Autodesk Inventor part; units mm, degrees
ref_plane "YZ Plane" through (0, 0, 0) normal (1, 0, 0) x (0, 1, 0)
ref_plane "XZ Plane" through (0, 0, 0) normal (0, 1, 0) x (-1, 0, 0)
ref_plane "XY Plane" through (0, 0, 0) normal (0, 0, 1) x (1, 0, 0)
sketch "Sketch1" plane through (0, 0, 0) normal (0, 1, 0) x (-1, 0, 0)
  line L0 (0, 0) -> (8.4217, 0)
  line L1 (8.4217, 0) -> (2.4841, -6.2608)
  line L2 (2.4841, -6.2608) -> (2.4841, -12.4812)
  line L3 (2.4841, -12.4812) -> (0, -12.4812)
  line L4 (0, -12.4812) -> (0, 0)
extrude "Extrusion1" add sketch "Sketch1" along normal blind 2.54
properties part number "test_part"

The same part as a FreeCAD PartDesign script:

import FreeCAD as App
import Part
import Sketcher
Q = App.Units.Quantity

doc = App.newDocument("Part")
body = doc.addObject("PartDesign::Body", "Body")

sketch1 = body.newObject("Sketcher::SketchObject", "Sketch")
sketch1.AttachmentSupport = (doc.getObject("XZ_Plane"), [""])
sketch1.MapMode = "FlatFace"
sketch1.addGeometry(Part.LineSegment(App.Vector(-8.4, 0, 0), App.Vector(0, 0, 0)), False)
sketch1.addGeometry(Part.LineSegment(App.Vector(0, 0, 0), App.Vector(0, -12.5, 0)), False)
sketch1.addGeometry(Part.LineSegment(App.Vector(0, -12.5, 0), App.Vector(-2.5, -12.5, 0)), False)
sketch1.addGeometry(Part.LineSegment(App.Vector(-2.5, -12.5, 0), App.Vector(-2.5, -6.3, 0)), False)
sketch1.addGeometry(Part.LineSegment(App.Vector(-2.5, -6.3, 0), App.Vector(-8.4, 0, 0)), False)
sketch1.addConstraint(Sketcher.Constraint("Coincident", 0, 2, 1, 1))
sketch1.addConstraint(Sketcher.Constraint("Coincident", 1, 2, 2, 1))
sketch1.addConstraint(Sketcher.Constraint("Coincident", 2, 2, 3, 1))
sketch1.addConstraint(Sketcher.Constraint("Coincident", 3, 2, 4, 1))
sketch1.addConstraint(Sketcher.Constraint("Coincident", 4, 2, 0, 1))
sketch1.addConstraint(Sketcher.Constraint("Horizontal", 0))
sketch1.addConstraint(Sketcher.Constraint("Vertical", 1))
sketch1.addConstraint(Sketcher.Constraint("Horizontal", 2))
sketch1.addConstraint(Sketcher.Constraint("Vertical", 3))
sketch1.addConstraint(Sketcher.Constraint("Coincident", 0, 2, -1, 1))
sketch1.addConstraint(Sketcher.Constraint("DistanceX", 2, 2, 2, 1, Q("0.0978 in")))
sketch1.addConstraint(Sketcher.Constraint("DistanceY", 3, 1, 3, 2, Q("0.2449 in")))
sketch1.addConstraint(Sketcher.Constraint("Distance", 4, Q("0.3397 in")))
sketch1.addConstraint(Sketcher.Constraint("DistanceX", 0, 1, 0, 2, Q("8.4217 mm")))
pad1 = body.newObject("PartDesign::Pad", "Pad")
pad1.Profile = sketch1
pad1.Length = Q("0.1 in")
pad1.Reversed = True

doc.recompute()
